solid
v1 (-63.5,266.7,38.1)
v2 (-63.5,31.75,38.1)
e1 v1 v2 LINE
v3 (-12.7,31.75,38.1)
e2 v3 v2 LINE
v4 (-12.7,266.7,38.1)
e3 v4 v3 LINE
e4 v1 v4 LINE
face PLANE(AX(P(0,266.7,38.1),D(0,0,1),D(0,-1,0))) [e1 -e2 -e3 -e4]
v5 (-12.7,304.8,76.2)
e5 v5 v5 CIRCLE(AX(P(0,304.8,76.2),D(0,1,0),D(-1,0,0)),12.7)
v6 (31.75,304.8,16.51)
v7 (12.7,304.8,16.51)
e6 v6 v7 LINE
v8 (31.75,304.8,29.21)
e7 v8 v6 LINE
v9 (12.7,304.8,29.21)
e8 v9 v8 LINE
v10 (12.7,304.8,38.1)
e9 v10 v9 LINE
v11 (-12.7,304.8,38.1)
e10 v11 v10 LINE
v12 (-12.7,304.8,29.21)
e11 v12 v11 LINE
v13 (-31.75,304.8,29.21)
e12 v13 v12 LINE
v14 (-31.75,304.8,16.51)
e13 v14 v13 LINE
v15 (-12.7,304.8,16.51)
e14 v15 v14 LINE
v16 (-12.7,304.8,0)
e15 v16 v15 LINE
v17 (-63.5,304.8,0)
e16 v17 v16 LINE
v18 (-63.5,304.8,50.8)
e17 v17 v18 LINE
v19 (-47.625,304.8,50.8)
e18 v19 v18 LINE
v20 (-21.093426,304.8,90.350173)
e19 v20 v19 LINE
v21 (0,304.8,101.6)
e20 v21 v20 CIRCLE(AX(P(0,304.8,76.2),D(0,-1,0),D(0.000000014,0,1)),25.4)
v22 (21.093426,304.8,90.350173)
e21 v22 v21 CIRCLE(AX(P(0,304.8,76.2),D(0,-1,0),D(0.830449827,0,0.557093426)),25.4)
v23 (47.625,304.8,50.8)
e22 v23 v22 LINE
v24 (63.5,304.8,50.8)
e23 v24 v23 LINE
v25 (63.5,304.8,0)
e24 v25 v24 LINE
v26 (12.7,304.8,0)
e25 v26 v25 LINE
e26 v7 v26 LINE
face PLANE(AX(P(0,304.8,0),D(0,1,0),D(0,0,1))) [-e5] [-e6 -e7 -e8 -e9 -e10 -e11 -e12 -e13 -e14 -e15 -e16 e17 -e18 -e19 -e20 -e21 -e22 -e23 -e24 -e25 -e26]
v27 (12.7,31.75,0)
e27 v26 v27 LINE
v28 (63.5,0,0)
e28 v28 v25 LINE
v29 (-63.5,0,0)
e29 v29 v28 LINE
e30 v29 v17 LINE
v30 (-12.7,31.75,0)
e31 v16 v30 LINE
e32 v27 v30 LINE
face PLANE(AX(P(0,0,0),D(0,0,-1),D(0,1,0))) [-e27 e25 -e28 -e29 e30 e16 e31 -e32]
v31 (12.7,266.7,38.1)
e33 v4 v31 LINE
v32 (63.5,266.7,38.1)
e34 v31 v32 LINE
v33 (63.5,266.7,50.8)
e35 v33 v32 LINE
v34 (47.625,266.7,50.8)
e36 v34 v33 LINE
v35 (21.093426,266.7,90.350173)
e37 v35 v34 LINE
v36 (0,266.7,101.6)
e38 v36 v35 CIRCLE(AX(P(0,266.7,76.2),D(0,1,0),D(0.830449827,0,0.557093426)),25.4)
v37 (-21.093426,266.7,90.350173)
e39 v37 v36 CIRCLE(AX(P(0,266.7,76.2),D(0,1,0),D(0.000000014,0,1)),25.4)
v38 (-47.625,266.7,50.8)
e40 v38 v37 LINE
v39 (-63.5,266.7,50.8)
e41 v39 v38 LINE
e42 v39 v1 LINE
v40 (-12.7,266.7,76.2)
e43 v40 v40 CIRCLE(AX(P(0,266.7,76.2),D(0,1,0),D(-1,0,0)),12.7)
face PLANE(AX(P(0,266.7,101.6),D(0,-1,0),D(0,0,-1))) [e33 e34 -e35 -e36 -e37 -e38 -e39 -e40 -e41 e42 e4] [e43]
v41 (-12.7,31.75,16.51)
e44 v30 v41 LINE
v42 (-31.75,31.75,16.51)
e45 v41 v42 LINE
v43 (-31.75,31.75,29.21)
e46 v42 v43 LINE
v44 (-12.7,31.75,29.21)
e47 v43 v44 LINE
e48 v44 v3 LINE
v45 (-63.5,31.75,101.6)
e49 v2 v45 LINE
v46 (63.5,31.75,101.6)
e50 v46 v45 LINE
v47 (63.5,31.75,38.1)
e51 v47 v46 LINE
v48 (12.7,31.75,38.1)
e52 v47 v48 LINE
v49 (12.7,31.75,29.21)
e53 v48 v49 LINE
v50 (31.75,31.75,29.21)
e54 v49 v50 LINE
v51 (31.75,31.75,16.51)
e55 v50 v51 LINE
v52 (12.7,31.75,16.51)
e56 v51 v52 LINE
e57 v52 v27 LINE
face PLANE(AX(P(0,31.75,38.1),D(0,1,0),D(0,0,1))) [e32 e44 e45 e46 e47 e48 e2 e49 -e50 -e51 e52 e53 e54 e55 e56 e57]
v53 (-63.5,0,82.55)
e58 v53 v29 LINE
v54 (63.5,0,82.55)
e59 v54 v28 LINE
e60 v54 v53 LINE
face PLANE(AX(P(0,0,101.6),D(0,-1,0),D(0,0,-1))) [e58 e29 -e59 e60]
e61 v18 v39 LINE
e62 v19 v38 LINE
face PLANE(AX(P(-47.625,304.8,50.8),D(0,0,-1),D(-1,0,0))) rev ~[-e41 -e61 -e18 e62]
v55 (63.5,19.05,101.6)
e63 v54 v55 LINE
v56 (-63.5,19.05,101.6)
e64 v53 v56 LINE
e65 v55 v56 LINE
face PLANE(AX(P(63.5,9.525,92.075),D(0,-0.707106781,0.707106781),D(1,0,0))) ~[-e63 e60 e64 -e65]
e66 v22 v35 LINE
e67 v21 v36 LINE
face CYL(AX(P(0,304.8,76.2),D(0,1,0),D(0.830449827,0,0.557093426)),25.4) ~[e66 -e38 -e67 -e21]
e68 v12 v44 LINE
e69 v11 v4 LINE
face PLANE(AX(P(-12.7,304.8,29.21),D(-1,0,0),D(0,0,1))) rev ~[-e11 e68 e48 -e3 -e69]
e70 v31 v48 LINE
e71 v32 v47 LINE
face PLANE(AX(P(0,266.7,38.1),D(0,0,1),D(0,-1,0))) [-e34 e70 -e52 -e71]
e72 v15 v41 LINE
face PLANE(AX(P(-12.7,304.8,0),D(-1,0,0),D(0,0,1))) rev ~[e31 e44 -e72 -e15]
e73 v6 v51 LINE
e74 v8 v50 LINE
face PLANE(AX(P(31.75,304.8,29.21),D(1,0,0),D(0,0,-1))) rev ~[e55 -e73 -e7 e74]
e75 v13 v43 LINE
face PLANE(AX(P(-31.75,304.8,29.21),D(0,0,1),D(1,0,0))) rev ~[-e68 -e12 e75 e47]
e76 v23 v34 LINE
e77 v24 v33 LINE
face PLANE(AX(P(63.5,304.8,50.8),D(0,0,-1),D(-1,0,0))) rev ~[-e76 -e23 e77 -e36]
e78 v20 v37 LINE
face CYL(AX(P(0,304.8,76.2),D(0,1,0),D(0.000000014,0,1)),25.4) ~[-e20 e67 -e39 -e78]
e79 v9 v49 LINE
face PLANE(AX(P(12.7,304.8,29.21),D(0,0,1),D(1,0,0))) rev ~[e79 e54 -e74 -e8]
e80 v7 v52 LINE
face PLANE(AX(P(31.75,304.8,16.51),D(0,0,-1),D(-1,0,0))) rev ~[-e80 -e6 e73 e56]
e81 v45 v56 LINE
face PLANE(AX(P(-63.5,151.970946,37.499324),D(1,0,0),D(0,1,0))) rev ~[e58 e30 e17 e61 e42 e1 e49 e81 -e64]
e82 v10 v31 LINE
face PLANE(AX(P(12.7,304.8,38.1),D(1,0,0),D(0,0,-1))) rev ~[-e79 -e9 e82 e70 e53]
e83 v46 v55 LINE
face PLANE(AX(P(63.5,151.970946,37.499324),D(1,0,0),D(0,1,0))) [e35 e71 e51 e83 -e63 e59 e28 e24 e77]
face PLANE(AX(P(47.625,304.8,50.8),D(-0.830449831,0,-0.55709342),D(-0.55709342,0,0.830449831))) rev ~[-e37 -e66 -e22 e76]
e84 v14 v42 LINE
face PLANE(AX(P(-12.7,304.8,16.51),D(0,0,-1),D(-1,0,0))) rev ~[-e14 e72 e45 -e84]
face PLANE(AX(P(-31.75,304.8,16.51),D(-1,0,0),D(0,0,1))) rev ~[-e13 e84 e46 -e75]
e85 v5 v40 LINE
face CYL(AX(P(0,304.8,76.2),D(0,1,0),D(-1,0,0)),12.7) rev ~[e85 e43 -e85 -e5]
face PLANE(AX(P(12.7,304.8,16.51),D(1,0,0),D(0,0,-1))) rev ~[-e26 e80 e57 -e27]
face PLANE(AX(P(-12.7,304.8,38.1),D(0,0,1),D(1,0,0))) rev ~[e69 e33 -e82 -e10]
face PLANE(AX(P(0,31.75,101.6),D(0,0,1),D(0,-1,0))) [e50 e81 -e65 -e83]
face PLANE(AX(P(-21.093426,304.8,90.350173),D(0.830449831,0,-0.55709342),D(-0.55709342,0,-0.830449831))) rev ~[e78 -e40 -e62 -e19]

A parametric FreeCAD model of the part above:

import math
import FreeCAD as App
import Part
import Sketcher
Q = App.Units.Quantity


def edges_at(feature, points):
    """Names of the edges that pass closest to the given points."""
    edges = feature.Shape.Edges
    near = lambda p: min(range(len(edges)), key=lambda i: edges[i].distToShape(Part.Vertex(*p))[0])
    return sorted({f"Edge{near(p) + 1}" for p in points})


def add_polygon(sketch, points):
    """Adds a closed chain of lines whose ends are joined by coincident constraints."""
    first, n = sketch.GeometryCount, len(points)
    for a, b in zip(points, points[1:] + points[:1]):
        sketch.addGeometry(Part.LineSegment(App.Vector(*a, 0), App.Vector(*b, 0)), False)
    for i in range(n):
        sketch.addConstraint(Sketcher.Constraint("Coincident", first + i, 2, first + (i + 1) % n, 1))

doc = App.newDocument("Part")
params = doc.addObject("Spreadsheet::Sheet", "Params")
for row, (alias, value) in enumerate([
    ("sketch1_width", "12 in"),
    ("sketch1_height", "4 in"),
    ("sketch1_width2", "1.5 in"),
    ("sketch1_height2", "2.5 in"),
    ("sketch1_width3", "9.25 in"),
    ("pad1_length", "5 in"),
    ("sketch2_diameter", "1 in"),
    ("sketch2_radius", "1 in"),
    ("sketch2_height", "2 in"),
    ("sketch2_width", "2.5 in"),
    ("sketch2_width2", "0.625 in"),
    ("pocket1_length", "2 in"),
    ("sketch3_width", "1 in"),
    ("sketch3_height", "0.5 in"),
    ("sketch3_width2", "0.75 in"),
    ("sketch3_height2", "0.65 in"),
    ("sketch3_height3", "0.35 in"),
    ("pocket2_length", "10.75 in"),
    ("chamfer_size", "0.75 in"),
    ("chamfer_size2", "0.75 in"),
], start=1):
    params.set(f"A{row}", alias)
    params.set(f"B{row}", "=" + value)
    params.setAlias(f"B{row}", alias)

body = doc.addObject("PartDesign::Body", "Body")

# Sketch on YZ plane
sketch1 = body.newObject("Sketcher::SketchObject", "Sketch")
sketch1.AttachmentSupport = (doc.getObject("YZ_Plane"), [""])
sketch1.MapMode = "FlatFace"
add_polygon(sketch1, [(0, 102), (0, 0), (305, 0), (305, 102), (267, 102), (267, 38), (32, 38), (32, 102)])  # lines 0-7
sketch1.addConstraint([
    Sketcher.Constraint("Vertical", 0),
    Sketcher.Constraint("Horizontal", 1),
    Sketcher.Constraint("Vertical", 2),
    Sketcher.Constraint("Horizontal", 3),
    Sketcher.Constraint("Vertical", 4),
    Sketcher.Constraint("Horizontal", 5),
    Sketcher.Constraint("Vertical", 6),
    Sketcher.Constraint("Horizontal", 7),
    Sketcher.Constraint("Coincident", 0, 2, -1, 1),
    Sketcher.Constraint("Horizontal", 3, 2, 6, 2),
    Sketcher.Constraint("DistanceX", 1, 1, 1, 2, Q("12 in")),
    Sketcher.Constraint("DistanceY", 0, 2, 0, 1, Q("4 in")),
    Sketcher.Constraint("DistanceX", 3, 2, 3, 1, Q("1.5 in")),
    Sketcher.Constraint("DistanceY", 4, 2, 4, 1, Q("2.5 in")),
    Sketcher.Constraint("DistanceX", 5, 2, 5, 1, Q("9.25 in")),
])
sketch1.setExpression("Constraints[18]", "Params.sketch1_width")
sketch1.setExpression("Constraints[19]", "Params.sketch1_height")
sketch1.setExpression("Constraints[20]", "Params.sketch1_width2")
sketch1.setExpression("Constraints[21]", "Params.sketch1_height2")
sketch1.setExpression("Constraints[22]", "Params.sketch1_width3")
pad1 = body.newObject("PartDesign::Pad", "Pad")
pad1.Profile = sketch1
pad1.setExpression("Length", "Params.pad1_length")
pad1.Midplane = True

# Sketch on XZ plane
sketch2 = body.newObject("Sketcher::SketchObject", "Sketch001")
sketch2.AttachmentSupport = (doc.getObject("XZ_Plane"), [""])
sketch2.MapMode = "FlatFace"
sketch2.AttachmentOffset = App.Placement(App.Vector(0, 0, -12 * 25.4), App.Rotation())
sketch2.addGeometry([
    Part.LineSegment(App.Vector(64, 102, 0), App.Vector(64, 51, 0)),  # 0
    Part.LineSegment(App.Vector(64, 51, 0), App.Vector(48, 51, 0)),  # 1
    Part.LineSegment(App.Vector(48, 51, 0), App.Vector(21, 90, 0)),  # 2
    Part.ArcOfCircle(Part.Circle(App.Vector(0, 76, 0), App.Vector(0, 0, 1), 25), math.radians(34), math.radians(90)),  # 3
    Part.LineSegment(App.Vector(0, 102, 0), App.Vector(64, 102, 0)),  # 4
    Part.LineSegment(App.Vector(-64, 102, 0), App.Vector(0, 102, 0)),  # 5
    Part.ArcOfCircle(Part.Circle(App.Vector(0, 76, 0), App.Vector(0, 0, 1), 25), math.radians(90), math.radians(146)),  # 6
    Part.LineSegment(App.Vector(-21, 90, 0), App.Vector(-48, 51, 0)),  # 7
    Part.LineSegment(App.Vector(-48, 51, 0), App.Vector(-64, 51, 0)),  # 8
    Part.LineSegment(App.Vector(-64, 51, 0), App.Vector(-64, 102, 0)),  # 9
    Part.Circle(App.Vector(0, 76, 0), App.Vector(0, 0, 1), 13),  # 10
], False)
sketch2.addConstraint([
    Sketcher.Constraint("Coincident", 0, 2, 1, 1),
    Sketcher.Constraint("Coincident", 1, 2, 2, 1),
    Sketcher.Constraint("Tangent", 2, 2, 3, 1),
    Sketcher.Constraint("Tangent", 3, 2, 4, 1),
    Sketcher.Constraint("Coincident", 4, 2, 0, 1),
    Sketcher.Constraint("Tangent", 5, 2, 6, 1),
    Sketcher.Constraint("Tangent", 6, 2, 7, 1),
    Sketcher.Constraint("Coincident", 7, 2, 8, 1),
    Sketcher.Constraint("Coincident", 8, 2, 9, 1),
    Sketcher.Constraint("Coincident", 9, 2, 5, 1),
    Sketcher.Constraint("Vertical", 0),
    Sketcher.Constraint("Horizontal", 1),
    Sketcher.Constraint("Horizontal", 4),
    Sketcher.Constraint("Horizontal", 5),
    Sketcher.Constraint("Horizontal", 8),
    Sketcher.Constraint("Vertical", 9),
    Sketcher.Constraint("Coincident", 6, 3, 3, 3),
    Sketcher.Constraint("Coincident", 10, 3, 3, 3),
    Sketcher.Constraint("Equal", 3, 6),
    Sketcher.Constraint("Symmetric", 2, 2, 6, 2, -2),
    Sketcher.Constraint("Symmetric", 0, 2, 8, 2, -2),
    Sketcher.Constraint("Diameter", 10, Q("1 in")),
    Sketcher.Constraint("Radius", 3, Q("1 in")),
    Sketcher.Constraint("DistanceY", 0, 2, 0, 1, Q("2 in")),
    Sketcher.Constraint("DistanceX", 4, 1, 4, 2, Q("2.5 in")),
    Sketcher.Constraint("DistanceY", -1, 1, 3, 3, Q("3 in")),
    Sketcher.Constraint("DistanceX", 1, 2, 1, 1, Q("0.625 in")),
])
sketch2.setExpression("Constraints[21]", "Params.sketch2_diameter")
sketch2.setExpression("Constraints[22]", "Params.sketch2_radius")
sketch2.setExpression("Constraints[23]", "Params.sketch2_height")
sketch2.setExpression("Constraints[24]", "Params.sketch2_width")
sketch2.setExpression("Constraints[26]", "Params.sketch2_width2")
pocket1 = body.newObject("PartDesign::Pocket", "Pocket")
pocket1.Profile = sketch2
pocket1.setExpression("Length", "Params.pocket1_length")
pocket1.Reversed = True

# Sketch on XZ plane
sketch3 = body.newObject("Sketcher::SketchObject", "Sketch002")
sketch3.AttachmentSupport = (doc.getObject("XZ_Plane"), [""])
sketch3.MapMode = "FlatFace"
sketch3.AttachmentOffset = App.Placement(App.Vector(0, 0, -12 * 25.4), App.Rotation())
add_polygon(sketch3, [(13, 17), (13, 0), (-13, 0), (-13, 17), (-32, 17), (-32, 29), (-13, 29), (-13, 38), (13, 38), (13, 29), (32, 29), (32, 17)])  # lines 0-11
sketch3.addConstraint([
    Sketcher.Constraint("Vertical", 0),
    Sketcher.Constraint("Horizontal", 1),
    Sketcher.Constraint("Vertical", 2),
    Sketcher.Constraint("Horizontal", 3),
    Sketcher.Constraint("Vertical", 4),
    Sketcher.Constraint("Horizontal", 5),
    Sketcher.Constraint("Vertical", 6),
    Sketcher.Constraint("Horizontal", 7),
    Sketcher.Constraint("Vertical", 8),
    Sketcher.Constraint("Horizontal", 9),
    Sketcher.Constraint("Vertical", 10),
    Sketcher.Constraint("Horizontal", 11),
    Sketcher.Constraint("Symmetric", 0, 2, 1, 2, -1, 1),
    Sketcher.Constraint("Symmetric", 5, 2, 8, 2, -2),
    Sketcher.Constraint("Symmetric", 3, 2, 10, 2, -2),
    Sketcher.Constraint("Vertical", 2, 2, 5, 2),
    Sketcher.Constraint("DistanceX", 1, 2, 1, 1, Q("1 in")),
    Sketcher.Constraint("DistanceY", 4, 1, 4, 2, Q("0.5 in")),
    Sketcher.Constraint("DistanceX", 3, 2, 3, 1, Q("0.75 in")),
    Sketcher.Constraint("DistanceY", 0, 2, 0, 1, Q("0.65 in")),
    Sketcher.Constraint("DistanceY", 6, 1, 6, 2, Q("0.35 in")),
])
sketch3.setExpression("Constraints[28]", "Params.sketch3_width")
sketch3.setExpression("Constraints[29]", "Params.sketch3_height")
sketch3.setExpression("Constraints[30]", "Params.sketch3_width2")
sketch3.setExpression("Constraints[31]", "Params.sketch3_height2")
sketch3.setExpression("Constraints[32]", "Params.sketch3_height3")
pocket2 = body.newObject("PartDesign::Pocket", "Pocket001")
pocket2.Profile = sketch3
pocket2.setExpression("Length", "Params.pocket2_length")
pocket2.Reversed = True
doc.recompute()

chamfer = body.newObject("PartDesign::Chamfer", "Chamfer")
chamfer.Base = (pocket2, edges_at(pocket2, [(0, 0, 101.6)]))
chamfer.ChamferType = "Two distances"
chamfer.setExpression("Size", "Params.chamfer_size")
chamfer.setExpression("Size2", "Params.chamfer_size2")

doc.recompute()
